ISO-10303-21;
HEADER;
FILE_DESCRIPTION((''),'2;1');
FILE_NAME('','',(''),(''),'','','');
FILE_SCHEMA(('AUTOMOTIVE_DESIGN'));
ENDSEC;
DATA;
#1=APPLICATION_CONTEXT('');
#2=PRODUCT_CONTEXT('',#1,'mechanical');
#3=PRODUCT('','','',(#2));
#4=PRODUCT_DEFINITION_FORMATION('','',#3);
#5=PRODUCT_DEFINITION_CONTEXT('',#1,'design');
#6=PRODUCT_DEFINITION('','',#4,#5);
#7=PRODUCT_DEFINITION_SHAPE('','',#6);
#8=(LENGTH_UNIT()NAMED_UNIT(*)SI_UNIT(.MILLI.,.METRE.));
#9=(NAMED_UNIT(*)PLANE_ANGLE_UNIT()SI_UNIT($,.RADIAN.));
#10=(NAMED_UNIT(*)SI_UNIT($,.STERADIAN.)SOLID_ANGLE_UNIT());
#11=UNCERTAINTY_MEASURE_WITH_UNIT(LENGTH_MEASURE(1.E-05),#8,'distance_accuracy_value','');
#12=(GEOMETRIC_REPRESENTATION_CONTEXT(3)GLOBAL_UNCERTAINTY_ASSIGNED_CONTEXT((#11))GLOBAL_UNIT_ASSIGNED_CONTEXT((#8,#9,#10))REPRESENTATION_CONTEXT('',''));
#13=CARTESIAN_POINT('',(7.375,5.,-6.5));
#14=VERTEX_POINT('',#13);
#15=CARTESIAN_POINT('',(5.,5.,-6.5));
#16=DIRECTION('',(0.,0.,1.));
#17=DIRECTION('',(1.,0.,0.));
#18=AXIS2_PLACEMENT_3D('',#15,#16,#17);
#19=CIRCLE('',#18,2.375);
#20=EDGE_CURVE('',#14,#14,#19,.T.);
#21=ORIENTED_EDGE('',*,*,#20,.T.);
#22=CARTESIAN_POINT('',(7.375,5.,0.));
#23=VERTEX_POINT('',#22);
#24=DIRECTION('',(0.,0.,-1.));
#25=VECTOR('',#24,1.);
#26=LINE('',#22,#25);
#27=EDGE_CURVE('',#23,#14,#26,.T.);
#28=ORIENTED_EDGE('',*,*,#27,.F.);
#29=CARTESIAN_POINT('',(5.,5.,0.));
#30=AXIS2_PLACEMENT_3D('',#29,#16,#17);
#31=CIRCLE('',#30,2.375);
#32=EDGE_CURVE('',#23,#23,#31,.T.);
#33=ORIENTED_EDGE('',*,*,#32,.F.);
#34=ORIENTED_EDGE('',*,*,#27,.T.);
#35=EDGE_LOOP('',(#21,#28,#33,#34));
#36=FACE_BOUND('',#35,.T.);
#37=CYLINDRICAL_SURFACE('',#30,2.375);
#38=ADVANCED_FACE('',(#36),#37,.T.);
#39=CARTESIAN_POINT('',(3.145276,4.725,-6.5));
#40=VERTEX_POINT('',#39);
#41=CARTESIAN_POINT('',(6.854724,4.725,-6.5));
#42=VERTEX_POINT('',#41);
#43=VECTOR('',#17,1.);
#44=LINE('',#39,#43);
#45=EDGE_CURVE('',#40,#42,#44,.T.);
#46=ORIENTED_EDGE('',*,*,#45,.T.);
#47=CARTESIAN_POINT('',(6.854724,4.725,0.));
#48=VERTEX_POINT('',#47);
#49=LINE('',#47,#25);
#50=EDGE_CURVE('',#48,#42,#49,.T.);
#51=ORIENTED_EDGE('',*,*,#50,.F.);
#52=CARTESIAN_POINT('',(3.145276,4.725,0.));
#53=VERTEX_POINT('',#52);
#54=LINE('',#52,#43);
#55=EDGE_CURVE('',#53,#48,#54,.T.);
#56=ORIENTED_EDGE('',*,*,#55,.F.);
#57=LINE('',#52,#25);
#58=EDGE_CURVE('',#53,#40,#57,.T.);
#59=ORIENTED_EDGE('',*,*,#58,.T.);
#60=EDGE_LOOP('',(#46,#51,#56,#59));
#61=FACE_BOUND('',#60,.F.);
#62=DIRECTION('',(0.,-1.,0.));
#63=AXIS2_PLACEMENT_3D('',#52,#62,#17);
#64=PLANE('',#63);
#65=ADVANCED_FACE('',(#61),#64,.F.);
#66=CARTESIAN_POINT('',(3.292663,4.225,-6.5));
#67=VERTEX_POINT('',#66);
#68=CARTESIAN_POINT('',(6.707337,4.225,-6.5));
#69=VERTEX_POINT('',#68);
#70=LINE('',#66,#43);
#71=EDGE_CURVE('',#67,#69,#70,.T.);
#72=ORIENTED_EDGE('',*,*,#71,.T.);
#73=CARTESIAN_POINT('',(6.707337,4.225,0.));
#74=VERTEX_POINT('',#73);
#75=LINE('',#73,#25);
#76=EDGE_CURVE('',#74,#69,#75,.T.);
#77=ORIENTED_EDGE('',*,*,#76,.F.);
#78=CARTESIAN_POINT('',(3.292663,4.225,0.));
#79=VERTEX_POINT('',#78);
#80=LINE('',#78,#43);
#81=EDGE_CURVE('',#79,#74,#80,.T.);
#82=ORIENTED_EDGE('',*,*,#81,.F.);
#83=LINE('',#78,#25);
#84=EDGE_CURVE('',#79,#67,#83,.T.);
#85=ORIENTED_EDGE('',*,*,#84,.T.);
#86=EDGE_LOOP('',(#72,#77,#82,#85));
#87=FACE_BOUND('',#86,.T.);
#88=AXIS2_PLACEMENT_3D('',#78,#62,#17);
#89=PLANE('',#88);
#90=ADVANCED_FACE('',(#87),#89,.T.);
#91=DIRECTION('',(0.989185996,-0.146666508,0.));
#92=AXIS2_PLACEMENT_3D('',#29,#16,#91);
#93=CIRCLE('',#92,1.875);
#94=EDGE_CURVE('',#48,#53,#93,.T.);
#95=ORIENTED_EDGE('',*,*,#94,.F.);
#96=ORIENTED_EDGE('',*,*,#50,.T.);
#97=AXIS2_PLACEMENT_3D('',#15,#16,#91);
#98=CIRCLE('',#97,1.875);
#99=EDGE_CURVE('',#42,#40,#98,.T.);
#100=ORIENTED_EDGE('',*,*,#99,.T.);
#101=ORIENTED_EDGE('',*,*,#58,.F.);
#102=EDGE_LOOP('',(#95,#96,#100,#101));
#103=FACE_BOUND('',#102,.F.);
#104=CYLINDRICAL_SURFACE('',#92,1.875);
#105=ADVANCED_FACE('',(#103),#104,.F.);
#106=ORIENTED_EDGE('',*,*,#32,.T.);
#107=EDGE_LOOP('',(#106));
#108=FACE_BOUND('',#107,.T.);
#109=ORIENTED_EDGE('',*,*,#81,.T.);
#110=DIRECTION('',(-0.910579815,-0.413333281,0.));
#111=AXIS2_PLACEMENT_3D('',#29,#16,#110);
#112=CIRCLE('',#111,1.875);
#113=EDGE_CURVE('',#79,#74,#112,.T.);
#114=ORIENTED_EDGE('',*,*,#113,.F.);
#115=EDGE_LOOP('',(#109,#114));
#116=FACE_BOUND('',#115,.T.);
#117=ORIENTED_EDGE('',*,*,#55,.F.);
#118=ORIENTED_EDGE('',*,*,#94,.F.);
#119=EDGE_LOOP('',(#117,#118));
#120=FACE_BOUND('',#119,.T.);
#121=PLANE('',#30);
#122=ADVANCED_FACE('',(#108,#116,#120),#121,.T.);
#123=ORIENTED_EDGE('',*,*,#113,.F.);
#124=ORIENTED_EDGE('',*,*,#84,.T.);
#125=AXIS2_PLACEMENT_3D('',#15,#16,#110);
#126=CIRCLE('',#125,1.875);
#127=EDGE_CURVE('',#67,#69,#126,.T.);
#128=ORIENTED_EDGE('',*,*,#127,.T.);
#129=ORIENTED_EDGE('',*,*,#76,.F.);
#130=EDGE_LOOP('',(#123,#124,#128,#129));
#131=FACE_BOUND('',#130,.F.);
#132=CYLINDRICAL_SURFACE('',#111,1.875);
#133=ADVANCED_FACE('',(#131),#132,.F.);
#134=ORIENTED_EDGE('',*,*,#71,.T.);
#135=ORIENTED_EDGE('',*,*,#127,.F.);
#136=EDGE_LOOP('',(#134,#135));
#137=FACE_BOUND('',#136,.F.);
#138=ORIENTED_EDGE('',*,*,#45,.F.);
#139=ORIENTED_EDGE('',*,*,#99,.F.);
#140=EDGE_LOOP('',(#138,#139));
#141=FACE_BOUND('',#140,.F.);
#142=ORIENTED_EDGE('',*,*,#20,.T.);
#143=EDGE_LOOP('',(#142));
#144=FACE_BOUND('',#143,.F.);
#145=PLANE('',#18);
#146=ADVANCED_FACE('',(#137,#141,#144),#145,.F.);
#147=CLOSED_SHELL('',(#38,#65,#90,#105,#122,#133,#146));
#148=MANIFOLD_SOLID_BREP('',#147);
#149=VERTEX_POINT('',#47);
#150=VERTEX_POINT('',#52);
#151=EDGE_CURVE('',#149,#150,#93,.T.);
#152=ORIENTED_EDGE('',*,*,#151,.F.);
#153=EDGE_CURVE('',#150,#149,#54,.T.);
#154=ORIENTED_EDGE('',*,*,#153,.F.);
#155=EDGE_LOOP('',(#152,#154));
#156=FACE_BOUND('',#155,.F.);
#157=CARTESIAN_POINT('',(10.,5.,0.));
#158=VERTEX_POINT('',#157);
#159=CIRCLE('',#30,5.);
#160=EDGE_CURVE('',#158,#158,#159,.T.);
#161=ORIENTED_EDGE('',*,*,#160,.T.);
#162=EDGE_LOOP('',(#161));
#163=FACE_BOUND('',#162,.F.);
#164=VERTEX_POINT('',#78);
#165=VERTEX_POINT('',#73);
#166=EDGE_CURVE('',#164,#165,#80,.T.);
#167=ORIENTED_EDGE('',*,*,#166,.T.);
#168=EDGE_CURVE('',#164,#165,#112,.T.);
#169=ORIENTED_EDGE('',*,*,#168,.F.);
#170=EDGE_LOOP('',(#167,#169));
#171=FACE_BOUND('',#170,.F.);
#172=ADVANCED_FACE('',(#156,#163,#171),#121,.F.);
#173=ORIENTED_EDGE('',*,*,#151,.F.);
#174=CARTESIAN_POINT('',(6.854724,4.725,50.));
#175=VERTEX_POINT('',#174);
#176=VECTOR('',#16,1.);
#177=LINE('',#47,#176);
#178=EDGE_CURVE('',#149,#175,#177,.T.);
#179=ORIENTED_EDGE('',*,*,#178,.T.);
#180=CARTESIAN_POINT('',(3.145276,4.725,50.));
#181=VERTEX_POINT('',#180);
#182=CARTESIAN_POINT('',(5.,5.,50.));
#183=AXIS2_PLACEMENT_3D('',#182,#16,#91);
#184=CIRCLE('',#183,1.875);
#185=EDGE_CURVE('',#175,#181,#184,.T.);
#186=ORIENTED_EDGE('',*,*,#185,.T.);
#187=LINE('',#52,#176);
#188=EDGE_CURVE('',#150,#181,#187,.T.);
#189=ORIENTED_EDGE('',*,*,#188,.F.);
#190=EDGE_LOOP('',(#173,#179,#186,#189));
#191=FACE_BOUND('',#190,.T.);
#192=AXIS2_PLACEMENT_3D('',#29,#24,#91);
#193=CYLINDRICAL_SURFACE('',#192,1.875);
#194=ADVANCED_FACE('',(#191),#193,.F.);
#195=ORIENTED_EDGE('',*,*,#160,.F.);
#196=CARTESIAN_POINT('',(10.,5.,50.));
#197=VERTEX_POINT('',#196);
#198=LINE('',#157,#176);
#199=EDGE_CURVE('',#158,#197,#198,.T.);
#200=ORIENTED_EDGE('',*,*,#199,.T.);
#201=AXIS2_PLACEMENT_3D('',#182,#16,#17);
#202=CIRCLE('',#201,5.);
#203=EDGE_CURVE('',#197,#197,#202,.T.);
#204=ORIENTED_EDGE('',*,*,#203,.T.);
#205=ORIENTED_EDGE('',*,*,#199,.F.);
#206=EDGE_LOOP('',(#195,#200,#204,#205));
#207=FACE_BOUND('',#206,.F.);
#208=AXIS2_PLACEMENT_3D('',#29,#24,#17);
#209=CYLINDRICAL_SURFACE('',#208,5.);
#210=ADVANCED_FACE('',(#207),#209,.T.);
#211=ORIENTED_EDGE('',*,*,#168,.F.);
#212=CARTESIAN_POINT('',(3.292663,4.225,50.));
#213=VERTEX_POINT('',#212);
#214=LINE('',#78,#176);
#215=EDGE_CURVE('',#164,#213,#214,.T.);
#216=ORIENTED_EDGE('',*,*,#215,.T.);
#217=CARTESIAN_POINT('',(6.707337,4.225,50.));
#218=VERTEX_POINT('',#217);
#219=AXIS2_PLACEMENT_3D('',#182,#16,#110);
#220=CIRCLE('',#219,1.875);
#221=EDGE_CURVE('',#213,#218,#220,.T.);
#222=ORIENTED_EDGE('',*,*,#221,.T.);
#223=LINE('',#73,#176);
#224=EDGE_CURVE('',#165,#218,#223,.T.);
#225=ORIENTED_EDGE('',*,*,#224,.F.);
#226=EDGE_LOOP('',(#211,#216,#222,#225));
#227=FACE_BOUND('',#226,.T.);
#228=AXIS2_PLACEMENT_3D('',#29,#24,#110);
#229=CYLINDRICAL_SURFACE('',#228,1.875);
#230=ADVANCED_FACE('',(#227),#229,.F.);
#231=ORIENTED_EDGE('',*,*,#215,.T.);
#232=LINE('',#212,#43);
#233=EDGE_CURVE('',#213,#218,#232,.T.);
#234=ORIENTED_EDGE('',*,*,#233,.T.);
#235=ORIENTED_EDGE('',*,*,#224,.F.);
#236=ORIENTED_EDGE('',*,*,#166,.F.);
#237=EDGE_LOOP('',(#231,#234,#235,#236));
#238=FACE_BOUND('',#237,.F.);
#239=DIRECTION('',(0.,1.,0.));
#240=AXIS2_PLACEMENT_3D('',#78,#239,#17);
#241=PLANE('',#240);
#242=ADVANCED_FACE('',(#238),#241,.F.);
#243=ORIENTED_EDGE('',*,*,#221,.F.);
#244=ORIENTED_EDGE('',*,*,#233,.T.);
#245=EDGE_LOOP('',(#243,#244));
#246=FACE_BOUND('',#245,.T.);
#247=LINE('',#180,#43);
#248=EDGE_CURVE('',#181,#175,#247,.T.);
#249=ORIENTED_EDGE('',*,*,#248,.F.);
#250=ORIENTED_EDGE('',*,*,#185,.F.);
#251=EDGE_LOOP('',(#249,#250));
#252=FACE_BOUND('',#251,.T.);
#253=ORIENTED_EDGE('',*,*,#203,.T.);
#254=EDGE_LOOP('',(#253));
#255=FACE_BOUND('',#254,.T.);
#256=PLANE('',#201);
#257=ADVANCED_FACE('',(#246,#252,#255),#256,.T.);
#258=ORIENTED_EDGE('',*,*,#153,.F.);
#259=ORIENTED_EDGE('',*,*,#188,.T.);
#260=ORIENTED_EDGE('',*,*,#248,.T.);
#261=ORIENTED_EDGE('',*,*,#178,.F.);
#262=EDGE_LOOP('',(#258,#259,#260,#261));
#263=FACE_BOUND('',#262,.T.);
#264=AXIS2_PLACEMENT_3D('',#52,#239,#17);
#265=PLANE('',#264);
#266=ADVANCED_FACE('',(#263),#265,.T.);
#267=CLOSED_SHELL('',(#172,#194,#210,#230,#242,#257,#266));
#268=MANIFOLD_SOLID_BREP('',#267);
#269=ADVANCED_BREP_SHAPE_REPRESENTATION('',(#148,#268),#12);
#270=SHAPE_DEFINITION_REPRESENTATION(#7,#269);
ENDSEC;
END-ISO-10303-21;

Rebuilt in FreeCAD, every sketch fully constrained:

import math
import FreeCAD as App
import Part
import Sketcher
from FreeCAD import Vector

doc = App.newDocument("Part")
body = doc.addObject("PartDesign::Body", "Body")

sketch1 = body.newObject("Sketcher::SketchObject", "Sketch")
sketch1.AttachmentSupport = (doc.getObject("XY_Plane"), [""])
sketch1.MapMode = "FlatFace"
sketch1.addGeometry([
    Part.Circle(Vector(5, 5, 0), Vector(0, 0, 1), 5),
    Part.ArcOfCircle(Part.Circle(Vector(5, 5, 0), Vector(0, 0, 1), 1.9), math.radians(-156), math.radians(-24)),
    Part.LineSegment(Vector(3.3, 4.2, 0), Vector(6.7, 4.2, 0)),
    Part.LineSegment(Vector(6.9, 4.7, 0), Vector(3.1, 4.7, 0)),
    Part.ArcOfCircle(Part.Circle(Vector(5, 5, 0), Vector(0, 0, 1), 1.9), math.radians(-8), math.radians(188)),
], False)
sketch1.addConstraint([
    Sketcher.Constraint("Coincident", 1, 1, 2, 1),
    Sketcher.Constraint("Coincident", 2, 2, 1, 2),
    Sketcher.Constraint("Coincident", 3, 1, 4, 1),
    Sketcher.Constraint("Coincident", 4, 2, 3, 2),
    Sketcher.Constraint("Horizontal", 2),
    Sketcher.Constraint("Horizontal", 3),
    Sketcher.Constraint("Coincident", 1, 3, 0, 3),
    Sketcher.Constraint("Coincident", 4, 3, 0, 3),
    Sketcher.Constraint("Equal", 1, 4),
    Sketcher.Constraint("Diameter", 0, 10.0),
    Sketcher.Constraint("DistanceX", -1, 1, 0, 3, 5.0),
    Sketcher.Constraint("DistanceY", -1, 1, 0, 3, 5.0),
    Sketcher.Constraint("Radius", 1, 1.875),
    Sketcher.Constraint("DistanceY", 2, 2, 3, 1, 0.5),
    Sketcher.Constraint("DistanceY", -1, 1, 1, 1, 4.225),
])
pad1 = body.newObject("PartDesign::Pad", "Pad")
pad1.Profile = sketch1
pad1.Length = 50
body2 = doc.addObject("PartDesign::Body", "Body001")

sketch2 = body2.newObject("Sketcher::SketchObject", "Sketch001")
sketch2.AttachmentSupport = (doc.getObject("XY_Plane001"), [""])
sketch2.MapMode = "FlatFace"
sketch2.addGeometry([
    Part.Circle(Vector(5, 5, 0), Vector(0, 0, 1), 2.4),
    Part.ArcOfCircle(Part.Circle(Vector(5, 5, 0), Vector(0, 0, 1), 1.9), math.radians(-156), math.radians(-24)),
    Part.LineSegment(Vector(3.3, 4.2, 0), Vector(6.7, 4.2, 0)),
    Part.LineSegment(Vector(6.9, 4.7, 0), Vector(3.1, 4.7, 0)),
    Part.ArcOfCircle(Part.Circle(Vector(5, 5, 0), Vector(0, 0, 1), 1.9), math.radians(-8), math.radians(188)),
], False)
sketch2.addConstraint([
    Sketcher.Constraint("Coincident", 1, 1, 2, 1),
    Sketcher.Constraint("Coincident", 2, 2, 1, 2),
    Sketcher.Constraint("Coincident", 3, 1, 4, 1),
    Sketcher.Constraint("Coincident", 4, 2, 3, 2),
    Sketcher.Constraint("Horizontal", 2),
    Sketcher.Constraint("Horizontal", 3),
    Sketcher.Constraint("Coincident", 1, 3, 0, 3),
    Sketcher.Constraint("Coincident", 4, 3, 0, 3),
    Sketcher.Constraint("Equal", 1, 4),
    Sketcher.Constraint("Diameter", 0, 4.75),
    Sketcher.Constraint("DistanceX", -1, 1, 0, 3, 5.0),
    Sketcher.Constraint("DistanceY", -1, 1, 0, 3, 5.0),
    Sketcher.Constraint("Radius", 1, 1.875),
    Sketcher.Constraint("DistanceY", 2, 2, 3, 1, 0.5),
    Sketcher.Constraint("DistanceY", -1, 1, 1, 1, 4.225),
])
pad2 = body2.newObject("PartDesign::Pad", "Pad001")
pad2.Profile = sketch2
pad2.Length = 6.5
pad2.Reversed = True

doc.recompute()
